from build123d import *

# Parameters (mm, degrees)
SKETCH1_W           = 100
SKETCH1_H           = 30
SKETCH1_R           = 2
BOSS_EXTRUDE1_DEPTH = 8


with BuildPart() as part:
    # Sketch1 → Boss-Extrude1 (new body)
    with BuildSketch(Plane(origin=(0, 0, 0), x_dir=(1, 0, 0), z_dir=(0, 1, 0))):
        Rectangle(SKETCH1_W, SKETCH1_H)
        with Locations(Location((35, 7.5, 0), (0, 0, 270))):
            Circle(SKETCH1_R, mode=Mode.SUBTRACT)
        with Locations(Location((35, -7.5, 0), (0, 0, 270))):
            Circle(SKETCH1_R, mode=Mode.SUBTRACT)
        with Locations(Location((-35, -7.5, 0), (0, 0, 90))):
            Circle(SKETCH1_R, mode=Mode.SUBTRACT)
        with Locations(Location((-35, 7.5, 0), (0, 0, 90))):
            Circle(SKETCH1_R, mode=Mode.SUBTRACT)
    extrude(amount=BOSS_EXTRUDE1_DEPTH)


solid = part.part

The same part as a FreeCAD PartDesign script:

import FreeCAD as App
import Part
import Sketcher


def add_polygon(sketch, points):
    """Adds a closed chain of lines whose ends are joined by coincident constraints."""
    first, n = sketch.GeometryCount, len(points)
    for a, b in zip(points, points[1:] + points[:1]):
        sketch.addGeometry(Part.LineSegment(App.Vector(*a, 0), App.Vector(*b, 0)), False)
    for i in range(n):
        sketch.addConstraint(Sketcher.Constraint("Coincident", first + i, 2, first + (i + 1) % n, 1))

doc = App.newDocument("Part")
params = doc.addObject("Spreadsheet::Sheet", "Params")
for row, (alias, value) in enumerate([
    ("sketch1_diameter", "4 mm"),
    ("sketch1_width", "100 mm"),
    ("sketch1_height", "30 mm"),
    ("pad1_length", "8 mm"),
], start=1):
    params.set(f"A{row}", alias)
    params.set(f"B{row}", "=" + value)
    params.setAlias(f"B{row}", alias)

body = doc.addObject("PartDesign::Body", "Body")

# Sketch on XZ plane
sketch1 = body.newObject("Sketcher::SketchObject", "Sketch")
sketch1.AttachmentSupport = (doc.getObject("XZ_Plane"), [""])
sketch1.MapMode = "FlatFace"
add_polygon(sketch1, [(-50, -15), (-50, 15), (50, 15), (50, -15)])  # lines 0-3
sketch1.addGeometry(Part.Circle(App.Vector(-35, 7.5, 0), App.Vector(0, 0, 1), 2), False)  # 4
sketch1.addGeometry(Part.Circle(App.Vector(35, 7.5, 0), App.Vector(0, 0, 1), 2), False)  # 5
sketch1.addGeometry(Part.Circle(App.Vector(-35, -7.5, 0), App.Vector(0, 0, 1), 2), False)  # 6
sketch1.addGeometry(Part.Circle(App.Vector(35, -7.5, 0), App.Vector(0, 0, 1), 2), False)  # 7
sketch1.addConstraint([
    Sketcher.Constraint("Vertical", 0),
    Sketcher.Constraint("Horizontal", 1),
    Sketcher.Constraint("Vertical", 2),
    Sketcher.Constraint("Horizontal", 3),
    Sketcher.Constraint("Equal", 4, 5),
    Sketcher.Constraint("Equal", 5, 6),
    Sketcher.Constraint("Equal", 6, 7),
    Sketcher.Constraint("Symmetric", 5, 3, 6, 3, -1, 1),
    Sketcher.Constraint("Symmetric", 4, 3, 7, 3, -1, 1),
    Sketcher.Constraint("Symmetric", 0, 2, 2, 2, -1, 1),
    Sketcher.Constraint("Symmetric", 4, 3, 5, 3, -2),
    Sketcher.Constraint("Diameter", 4, 4.0),
    Sketcher.Constraint("DistanceX", 1, 1, 1, 2, 100.0),
    Sketcher.Constraint("DistanceY", 0, 1, 0, 2, 30.0),
    Sketcher.Constraint("DistanceX", 4, 3, -1, 1, 35.0),
    Sketcher.Constraint("DistanceY", 6, 3, 4, 3, 15.0),
])
sketch1.setExpression("Constraints[15]", "Params.sketch1_diameter")
sketch1.setExpression("Constraints[16]", "Params.sketch1_width")
sketch1.setExpression("Constraints[17]", "Params.sketch1_height")
pad1 = body.newObject("PartDesign::Pad", "Pad")
pad1.Profile = sketch1
pad1.setExpression("Length", "Params.pad1_length")
pad1.Reversed = True

doc.recompute()
